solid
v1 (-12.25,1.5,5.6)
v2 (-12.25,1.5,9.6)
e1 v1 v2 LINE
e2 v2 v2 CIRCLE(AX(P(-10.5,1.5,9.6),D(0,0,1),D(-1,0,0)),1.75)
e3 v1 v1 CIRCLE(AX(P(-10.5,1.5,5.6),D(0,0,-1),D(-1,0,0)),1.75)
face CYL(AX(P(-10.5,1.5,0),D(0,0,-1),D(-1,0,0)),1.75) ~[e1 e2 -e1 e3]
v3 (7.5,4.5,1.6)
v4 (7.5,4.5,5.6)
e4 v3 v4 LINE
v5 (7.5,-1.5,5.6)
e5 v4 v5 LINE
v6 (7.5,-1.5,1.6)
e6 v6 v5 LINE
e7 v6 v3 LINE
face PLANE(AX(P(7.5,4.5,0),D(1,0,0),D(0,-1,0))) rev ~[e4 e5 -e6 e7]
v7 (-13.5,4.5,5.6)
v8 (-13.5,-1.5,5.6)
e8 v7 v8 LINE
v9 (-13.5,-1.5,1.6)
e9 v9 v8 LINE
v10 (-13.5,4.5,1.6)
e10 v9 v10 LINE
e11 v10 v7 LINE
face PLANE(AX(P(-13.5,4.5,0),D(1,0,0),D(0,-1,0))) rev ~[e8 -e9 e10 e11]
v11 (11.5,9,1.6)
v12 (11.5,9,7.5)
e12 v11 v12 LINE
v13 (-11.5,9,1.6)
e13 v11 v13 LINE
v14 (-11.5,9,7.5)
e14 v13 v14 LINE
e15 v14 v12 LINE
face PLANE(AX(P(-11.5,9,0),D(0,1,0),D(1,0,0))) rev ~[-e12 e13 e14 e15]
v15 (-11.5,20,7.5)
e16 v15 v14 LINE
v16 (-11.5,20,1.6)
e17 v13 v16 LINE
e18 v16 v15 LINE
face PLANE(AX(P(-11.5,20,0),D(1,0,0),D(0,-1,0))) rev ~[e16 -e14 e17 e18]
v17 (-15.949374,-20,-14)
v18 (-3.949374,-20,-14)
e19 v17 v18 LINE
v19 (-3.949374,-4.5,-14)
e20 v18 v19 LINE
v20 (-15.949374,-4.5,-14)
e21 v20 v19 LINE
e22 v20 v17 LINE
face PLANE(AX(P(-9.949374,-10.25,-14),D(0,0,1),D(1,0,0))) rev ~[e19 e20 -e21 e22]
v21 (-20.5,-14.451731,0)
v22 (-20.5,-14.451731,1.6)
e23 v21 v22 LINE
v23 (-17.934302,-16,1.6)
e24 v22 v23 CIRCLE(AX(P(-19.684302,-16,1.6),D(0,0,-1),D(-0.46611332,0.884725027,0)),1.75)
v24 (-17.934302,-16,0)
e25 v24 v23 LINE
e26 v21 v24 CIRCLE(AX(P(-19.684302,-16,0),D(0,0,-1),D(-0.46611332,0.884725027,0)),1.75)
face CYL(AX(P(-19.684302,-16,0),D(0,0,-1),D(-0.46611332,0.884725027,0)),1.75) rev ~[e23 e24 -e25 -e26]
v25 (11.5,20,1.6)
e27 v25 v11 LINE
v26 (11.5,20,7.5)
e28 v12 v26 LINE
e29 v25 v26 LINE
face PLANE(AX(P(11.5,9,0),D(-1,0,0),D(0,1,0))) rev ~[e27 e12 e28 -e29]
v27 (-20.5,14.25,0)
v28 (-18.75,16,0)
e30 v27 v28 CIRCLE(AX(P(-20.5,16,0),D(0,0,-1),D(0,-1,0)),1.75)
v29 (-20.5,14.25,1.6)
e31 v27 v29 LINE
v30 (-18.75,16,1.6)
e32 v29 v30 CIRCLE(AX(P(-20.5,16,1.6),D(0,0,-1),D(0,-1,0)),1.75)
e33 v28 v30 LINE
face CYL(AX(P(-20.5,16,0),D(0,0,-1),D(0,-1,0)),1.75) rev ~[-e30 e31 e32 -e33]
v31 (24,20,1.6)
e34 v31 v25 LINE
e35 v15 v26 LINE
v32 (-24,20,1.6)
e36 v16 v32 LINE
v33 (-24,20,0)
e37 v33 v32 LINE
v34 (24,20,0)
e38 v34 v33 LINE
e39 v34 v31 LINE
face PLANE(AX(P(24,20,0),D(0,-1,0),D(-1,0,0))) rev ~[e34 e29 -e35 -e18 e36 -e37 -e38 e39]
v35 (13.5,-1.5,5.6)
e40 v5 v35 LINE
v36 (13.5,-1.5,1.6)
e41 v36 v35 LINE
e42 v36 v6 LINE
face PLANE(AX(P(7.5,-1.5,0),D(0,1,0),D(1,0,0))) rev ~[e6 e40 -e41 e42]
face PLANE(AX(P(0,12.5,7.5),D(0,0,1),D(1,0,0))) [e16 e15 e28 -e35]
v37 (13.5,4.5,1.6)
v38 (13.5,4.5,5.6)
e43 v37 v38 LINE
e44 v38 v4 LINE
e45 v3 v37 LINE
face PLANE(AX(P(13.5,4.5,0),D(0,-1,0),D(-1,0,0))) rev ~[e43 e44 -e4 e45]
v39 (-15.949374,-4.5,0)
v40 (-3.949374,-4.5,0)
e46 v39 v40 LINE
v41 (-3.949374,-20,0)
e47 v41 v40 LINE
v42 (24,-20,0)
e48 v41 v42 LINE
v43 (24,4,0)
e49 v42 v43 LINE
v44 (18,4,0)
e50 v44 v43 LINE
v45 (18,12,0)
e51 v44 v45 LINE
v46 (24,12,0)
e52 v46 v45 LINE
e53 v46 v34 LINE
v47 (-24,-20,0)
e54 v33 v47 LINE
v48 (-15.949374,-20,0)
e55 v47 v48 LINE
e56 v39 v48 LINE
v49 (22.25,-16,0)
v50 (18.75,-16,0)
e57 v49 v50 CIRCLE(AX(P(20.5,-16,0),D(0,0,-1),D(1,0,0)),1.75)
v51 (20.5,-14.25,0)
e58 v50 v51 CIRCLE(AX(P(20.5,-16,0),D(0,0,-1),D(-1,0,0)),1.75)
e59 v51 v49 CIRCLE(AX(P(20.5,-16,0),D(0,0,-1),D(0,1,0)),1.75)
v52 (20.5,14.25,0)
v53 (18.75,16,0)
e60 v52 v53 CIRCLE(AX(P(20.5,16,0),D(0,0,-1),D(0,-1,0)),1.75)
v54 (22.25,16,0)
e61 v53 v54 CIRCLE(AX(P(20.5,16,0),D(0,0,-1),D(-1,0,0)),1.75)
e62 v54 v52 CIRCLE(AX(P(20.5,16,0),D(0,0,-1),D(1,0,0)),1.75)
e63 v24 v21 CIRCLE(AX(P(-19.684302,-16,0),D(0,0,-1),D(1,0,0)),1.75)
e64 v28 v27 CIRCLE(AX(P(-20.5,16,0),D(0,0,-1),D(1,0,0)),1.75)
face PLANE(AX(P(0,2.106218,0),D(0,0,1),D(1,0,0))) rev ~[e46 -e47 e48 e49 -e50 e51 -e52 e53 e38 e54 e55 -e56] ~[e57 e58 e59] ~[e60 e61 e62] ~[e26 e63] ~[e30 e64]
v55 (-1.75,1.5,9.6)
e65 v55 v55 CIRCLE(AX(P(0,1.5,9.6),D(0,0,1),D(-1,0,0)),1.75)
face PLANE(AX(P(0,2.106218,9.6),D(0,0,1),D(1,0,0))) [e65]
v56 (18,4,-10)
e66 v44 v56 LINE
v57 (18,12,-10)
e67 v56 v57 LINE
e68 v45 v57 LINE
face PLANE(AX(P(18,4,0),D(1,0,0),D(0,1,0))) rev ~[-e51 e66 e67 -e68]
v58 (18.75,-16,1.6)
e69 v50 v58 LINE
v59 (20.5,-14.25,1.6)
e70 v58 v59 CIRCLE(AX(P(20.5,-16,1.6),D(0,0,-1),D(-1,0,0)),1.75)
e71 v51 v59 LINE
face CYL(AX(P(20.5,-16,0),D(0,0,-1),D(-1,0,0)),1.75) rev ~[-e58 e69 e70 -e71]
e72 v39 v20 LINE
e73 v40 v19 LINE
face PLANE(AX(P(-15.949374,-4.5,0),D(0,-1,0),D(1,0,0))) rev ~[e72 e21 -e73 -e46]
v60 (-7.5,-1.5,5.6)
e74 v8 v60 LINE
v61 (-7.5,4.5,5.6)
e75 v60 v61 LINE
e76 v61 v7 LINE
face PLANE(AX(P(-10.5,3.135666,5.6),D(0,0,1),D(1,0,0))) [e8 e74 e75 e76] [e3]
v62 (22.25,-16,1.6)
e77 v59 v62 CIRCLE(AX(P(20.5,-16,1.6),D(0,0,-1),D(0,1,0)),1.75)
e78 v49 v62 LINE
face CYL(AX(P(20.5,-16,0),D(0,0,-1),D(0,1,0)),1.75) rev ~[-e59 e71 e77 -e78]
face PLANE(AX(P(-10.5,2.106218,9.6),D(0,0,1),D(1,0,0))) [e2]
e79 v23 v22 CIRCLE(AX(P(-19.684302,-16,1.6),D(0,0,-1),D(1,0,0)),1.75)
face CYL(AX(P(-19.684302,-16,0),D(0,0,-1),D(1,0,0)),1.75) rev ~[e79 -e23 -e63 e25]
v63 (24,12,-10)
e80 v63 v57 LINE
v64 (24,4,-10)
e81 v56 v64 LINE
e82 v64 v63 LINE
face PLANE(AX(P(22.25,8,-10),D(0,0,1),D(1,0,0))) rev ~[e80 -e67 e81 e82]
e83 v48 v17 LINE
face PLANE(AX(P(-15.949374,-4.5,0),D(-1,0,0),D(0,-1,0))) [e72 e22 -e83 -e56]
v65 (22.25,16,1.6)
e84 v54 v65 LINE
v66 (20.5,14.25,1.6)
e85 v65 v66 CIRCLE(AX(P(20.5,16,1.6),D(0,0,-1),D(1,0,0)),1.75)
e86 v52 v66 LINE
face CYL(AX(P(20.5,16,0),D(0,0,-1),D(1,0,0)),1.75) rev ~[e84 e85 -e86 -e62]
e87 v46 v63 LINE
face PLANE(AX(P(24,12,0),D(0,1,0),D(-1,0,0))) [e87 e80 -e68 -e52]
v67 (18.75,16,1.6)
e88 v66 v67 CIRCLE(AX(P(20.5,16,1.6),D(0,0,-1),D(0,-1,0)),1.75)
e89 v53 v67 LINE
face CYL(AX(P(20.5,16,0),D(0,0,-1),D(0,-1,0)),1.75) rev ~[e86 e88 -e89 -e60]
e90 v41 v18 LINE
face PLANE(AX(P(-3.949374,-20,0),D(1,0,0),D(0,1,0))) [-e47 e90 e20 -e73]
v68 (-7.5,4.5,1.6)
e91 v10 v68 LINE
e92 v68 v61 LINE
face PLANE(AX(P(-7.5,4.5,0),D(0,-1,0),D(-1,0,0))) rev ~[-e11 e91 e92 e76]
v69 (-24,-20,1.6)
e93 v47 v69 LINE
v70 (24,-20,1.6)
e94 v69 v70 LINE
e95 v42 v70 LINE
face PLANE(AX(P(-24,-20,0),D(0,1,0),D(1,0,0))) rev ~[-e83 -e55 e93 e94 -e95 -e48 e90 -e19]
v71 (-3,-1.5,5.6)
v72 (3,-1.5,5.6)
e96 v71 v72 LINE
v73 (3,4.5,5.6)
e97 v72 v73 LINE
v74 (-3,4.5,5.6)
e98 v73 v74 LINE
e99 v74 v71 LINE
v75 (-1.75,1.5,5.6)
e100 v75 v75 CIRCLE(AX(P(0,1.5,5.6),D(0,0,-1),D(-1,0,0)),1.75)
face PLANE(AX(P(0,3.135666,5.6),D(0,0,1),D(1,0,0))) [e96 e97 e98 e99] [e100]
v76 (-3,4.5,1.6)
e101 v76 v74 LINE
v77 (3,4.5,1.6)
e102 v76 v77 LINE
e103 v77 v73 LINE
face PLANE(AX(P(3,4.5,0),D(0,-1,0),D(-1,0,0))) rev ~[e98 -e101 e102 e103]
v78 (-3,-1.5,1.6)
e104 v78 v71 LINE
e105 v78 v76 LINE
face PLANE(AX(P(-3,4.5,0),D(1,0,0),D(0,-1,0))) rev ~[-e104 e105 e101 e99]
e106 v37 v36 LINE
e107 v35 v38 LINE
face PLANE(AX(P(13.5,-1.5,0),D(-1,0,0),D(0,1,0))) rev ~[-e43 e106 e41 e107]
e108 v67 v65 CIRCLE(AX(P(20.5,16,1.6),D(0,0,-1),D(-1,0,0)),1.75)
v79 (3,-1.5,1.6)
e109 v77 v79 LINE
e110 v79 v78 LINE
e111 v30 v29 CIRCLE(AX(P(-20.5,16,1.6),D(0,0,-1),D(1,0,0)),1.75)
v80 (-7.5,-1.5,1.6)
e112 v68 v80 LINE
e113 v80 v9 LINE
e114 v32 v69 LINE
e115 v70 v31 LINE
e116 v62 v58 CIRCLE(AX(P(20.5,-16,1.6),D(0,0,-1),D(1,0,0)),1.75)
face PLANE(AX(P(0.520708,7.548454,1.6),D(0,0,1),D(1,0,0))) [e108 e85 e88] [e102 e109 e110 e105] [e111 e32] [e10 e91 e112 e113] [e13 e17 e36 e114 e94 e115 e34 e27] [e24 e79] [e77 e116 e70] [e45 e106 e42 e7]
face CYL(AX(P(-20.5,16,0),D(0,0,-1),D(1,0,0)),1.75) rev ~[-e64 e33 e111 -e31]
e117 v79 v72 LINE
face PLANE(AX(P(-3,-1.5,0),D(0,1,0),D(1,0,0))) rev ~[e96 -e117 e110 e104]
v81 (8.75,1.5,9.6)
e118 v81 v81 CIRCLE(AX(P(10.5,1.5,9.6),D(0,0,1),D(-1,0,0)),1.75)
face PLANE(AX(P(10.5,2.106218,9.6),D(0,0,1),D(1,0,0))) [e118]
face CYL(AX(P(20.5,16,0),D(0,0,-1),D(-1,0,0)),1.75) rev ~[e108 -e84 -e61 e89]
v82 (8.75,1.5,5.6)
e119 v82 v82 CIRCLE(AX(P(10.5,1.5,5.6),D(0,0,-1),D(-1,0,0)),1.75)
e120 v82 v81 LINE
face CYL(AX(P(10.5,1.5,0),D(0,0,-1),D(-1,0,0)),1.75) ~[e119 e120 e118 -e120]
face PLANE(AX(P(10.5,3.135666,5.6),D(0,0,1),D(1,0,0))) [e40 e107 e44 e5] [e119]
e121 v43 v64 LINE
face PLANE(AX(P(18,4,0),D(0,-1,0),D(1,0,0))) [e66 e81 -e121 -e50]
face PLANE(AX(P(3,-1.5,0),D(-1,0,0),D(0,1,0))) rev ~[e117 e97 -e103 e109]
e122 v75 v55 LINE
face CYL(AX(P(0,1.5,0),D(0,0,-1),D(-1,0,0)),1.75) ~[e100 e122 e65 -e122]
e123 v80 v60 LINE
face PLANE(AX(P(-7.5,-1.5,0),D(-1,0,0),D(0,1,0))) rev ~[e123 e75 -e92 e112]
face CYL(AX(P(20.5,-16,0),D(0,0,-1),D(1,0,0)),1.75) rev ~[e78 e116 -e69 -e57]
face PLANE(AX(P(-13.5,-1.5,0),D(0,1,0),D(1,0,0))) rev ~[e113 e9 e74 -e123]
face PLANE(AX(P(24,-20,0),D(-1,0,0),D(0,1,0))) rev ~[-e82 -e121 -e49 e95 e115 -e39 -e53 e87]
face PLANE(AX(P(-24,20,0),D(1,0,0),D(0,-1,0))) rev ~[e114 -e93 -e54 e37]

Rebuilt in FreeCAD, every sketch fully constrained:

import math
import FreeCAD as App
import Part
import Sketcher
from FreeCAD import Vector


def add_polygon(sketch, points):
    """Adds a closed chain of lines whose ends are joined by coincident constraints."""
    first, n = sketch.GeometryCount, len(points)
    for a, b in zip(points, points[1:] + points[:1]):
        sketch.addGeometry(Part.LineSegment(App.Vector(*a, 0), App.Vector(*b, 0)), False)
    for i in range(n):
        sketch.addConstraint(Sketcher.Constraint("Coincident", first + i, 2, first + (i + 1) % n, 1))

doc = App.newDocument("Part")
body = doc.addObject("PartDesign::Body", "Body")

# Sketch on XY plane
sketch1 = doc.addObject("Sketcher::SketchObject", "Sketch")
body.addObject(sketch1)
sketch1.AttachmentSupport = (doc.XY_Plane, [""])
sketch1.MapMode = "FlatFace"
add_polygon(sketch1, [(24, -20), (24, 20), (11.5, 20), (11.5, 9), (-11.5, 9), (-11.5, 20), (-24, 20), (-24, -20)])  # lines 0-7
sketch1.addGeometry(Part.ArcOfCircle(Part.Circle(Vector(-19.684302, -16, 0), Vector(0, 0, 1), 1.75), math.radians(0), math.radians(117.782298)), False)  # 8
sketch1.addGeometry(Part.ArcOfCircle(Part.Circle(Vector(-19.684302, -16, 0), Vector(0, 0, 1), 1.75), math.radians(117.782298), math.radians(360)), False)  # 9
sketch1.addGeometry(Part.ArcOfCircle(Part.Circle(Vector(20.5, -16, 0), Vector(0, 0, 1), 1.75), math.radians(90), math.radians(180)), False)  # 10
sketch1.addGeometry(Part.ArcOfCircle(Part.Circle(Vector(20.5, -16, 0), Vector(0, 0, 1), 1.75), math.radians(0), math.radians(90)), False)  # 11
sketch1.addGeometry(Part.ArcOfCircle(Part.Circle(Vector(20.5, -16, 0), Vector(0, 0, 1), 1.75), math.radians(180), math.radians(360)), False)  # 12
sketch1.addGeometry(Part.ArcOfCircle(Part.Circle(Vector(-20.5, 16, 0), Vector(0, 0, 1), 1.75), math.radians(-90), math.radians(0)), False)  # 13
sketch1.addGeometry(Part.ArcOfCircle(Part.Circle(Vector(-20.5, 16, 0), Vector(0, 0, 1), 1.75), math.radians(0), math.radians(270)), False)  # 14
sketch1.addGeometry(Part.ArcOfCircle(Part.Circle(Vector(20.5, 16, 0), Vector(0, 0, 1), 1.75), math.radians(180), math.radians(270)), False)  # 15
sketch1.addGeometry(Part.ArcOfCircle(Part.Circle(Vector(20.5, 16, 0), Vector(0, 0, 1), 1.75), math.radians(0), math.radians(180)), False)  # 16
sketch1.addGeometry(Part.ArcOfCircle(Part.Circle(Vector(20.5, 16, 0), Vector(0, 0, 1), 1.75), math.radians(-90), math.radians(0)), False)  # 17
sketch1.addConstraint([
    Sketcher.Constraint("Tangent", 8, 1, 9, 2),
    Sketcher.Constraint("Coincident", 9, 1, 8, 2),
    Sketcher.Constraint("Tangent", 10, 1, 11, 2),
    Sketcher.Constraint("Tangent", 11, 1, 12, 2),
    Sketcher.Constraint("Tangent", 12, 1, 10, 2),
    Sketcher.Constraint("Tangent", 13, 1, 14, 2),
    Sketcher.Constraint("Coincident", 14, 1, 13, 2),
    Sketcher.Constraint("Tangent", 15, 1, 16, 2),
    Sketcher.Constraint("Tangent", 16, 1, 17, 2),
    Sketcher.Constraint("Tangent", 17, 1, 15, 2),
    Sketcher.Constraint("Vertical", 0),
    Sketcher.Constraint("Horizontal", 1),
    Sketcher.Constraint("Vertical", 2),
    Sketcher.Constraint("Horizontal", 3),
    Sketcher.Constraint("Vertical", 4),
    Sketcher.Constraint("Horizontal", 5),
    Sketcher.Constraint("Vertical", 6),
    Sketcher.Constraint("Horizontal", 7),
    Sketcher.Constraint("Equal", 9, 10),
    Sketcher.Constraint("Equal", 12, 13),
    Sketcher.Constraint("Equal", 14, 15),
    Sketcher.Constraint("Symmetric", 10, 3, 13, 3, -1, 1),
    Sketcher.Constraint("Symmetric", 0, 2, 6, 2, -1, 1),
    Sketcher.Constraint("Symmetric", 13, 3, 15, 3, -2),
    Sketcher.Constraint("Symmetric", 1, 2, 4, 2, -2),
    Sketcher.Constraint("Horizontal", 9, 3, 10, 3),
    Sketcher.Constraint("Horizontal", 12, 3, 8, 1),
    Sketcher.Constraint("Horizontal", 8, 1, 11, 1),
    Sketcher.Constraint("Horizontal", 11, 1, 12, 1),
    Sketcher.Constraint("Horizontal", 17, 3, 14, 1),
    Sketcher.Constraint("Horizontal", 14, 1, 15, 1),
    Sketcher.Constraint("Horizontal", 15, 1, 16, 1),
    Sketcher.Constraint("Vertical", 14, 3, 9, 1),
    Sketcher.Constraint("Vertical", 17, 3, 10, 1),
    Sketcher.Constraint("Vertical", 9, 1, 13, 1),
    Sketcher.Constraint("Vertical", 10, 1, 17, 1),
    Sketcher.Constraint("DistanceX", 3, 2, 3, 1, 23.0),
    Sketcher.Constraint("DistanceX", 7, 1, 7, 2, 48.0),
    Sketcher.Constraint("DistanceY", 0, 1, 0, 2, 40.0),
    Sketcher.Constraint("DistanceY", 2, 2, 2, 1, 11.0),
    Sketcher.Constraint("Radius", 8, 1.75),
    Sketcher.Constraint("DistanceY", 8, 3, -1, 1, 16.0),
    Sketcher.Constraint("DistanceX", 13, 3, 10, 3, 41.0),
    Sketcher.Constraint("DistanceX", 8, 3, -1, 1, 19.684302),
])
pad1 = doc.addObject("PartDesign::Pad", "Pad")
body.addObject(pad1)
pad1.Profile = sketch1
pad1.Length = 1.6

# Sketch on XY plane
sketch2 = doc.addObject("Sketcher::SketchObject", "Sketch001")
body.addObject(sketch2)
sketch2.AttachmentSupport = (doc.XY_Plane, [""])
sketch2.MapMode = "FlatFace"
add_polygon(sketch2, [(-11.5, 9), (11.5, 9), (11.5, 20), (-11.5, 20)])  # lines 0-3
sketch2.addConstraint([
    Sketcher.Constraint("Horizontal", 0),
    Sketcher.Constraint("Vertical", 1),
    Sketcher.Constraint("Horizontal", 2),
    Sketcher.Constraint("Vertical", 3),
    Sketcher.Constraint("DistanceX", 0, 1, 0, 2, 23.0),
    Sketcher.Constraint("DistanceY", 1, 1, 1, 2, 11.0),
    Sketcher.Constraint("DistanceY", -1, 1, 0, 2, 9.0),
    Sketcher.Constraint("DistanceX", -1, 1, 0, 2, 11.5),
])
pad2 = doc.addObject("PartDesign::Pad", "Pad001")
body.addObject(pad2)
pad2.Profile = sketch2
pad2.Length = 7.5

# Sketch on XY plane
sketch3 = doc.addObject("Sketcher::SketchObject", "Sketch002")
body.addObject(sketch3)
sketch3.AttachmentSupport = (doc.XY_Plane, [""])
sketch3.MapMode = "FlatFace"
add_polygon(sketch3, [(-13.5, 4.5), (-13.5, -1.5), (-7.5, -1.5), (-7.5, 4.5)])  # lines 0-3
sketch3.addGeometry(Part.Circle(Vector(-10.5, 1.5, 0), Vector(0, 0, 1), 1.75), False)  # 4
add_polygon(sketch3, [(-3, 4.5), (-3, -1.5), (3, -1.5), (3, 4.5)])  # lines 5-8
sketch3.addGeometry(Part.Circle(Vector(0, 1.5, 0), Vector(0, 0, 1), 1.75), False)  # 9
add_polygon(sketch3, [(13.5, 4.5), (7.5, 4.5), (7.5, -1.5), (13.5, -1.5)])  # lines 10-13
sketch3.addGeometry(Part.Circle(Vector(10.5, 1.5, 0), Vector(0, 0, 1), 1.75), False)  # 14
sketch3.addConstraint([
    Sketcher.Constraint("Vertical", 0),
    Sketcher.Constraint("Horizontal", 1),
    Sketcher.Constraint("Vertical", 2),
    Sketcher.Constraint("Horizontal", 3),
    Sketcher.Constraint("Vertical", 5),
    Sketcher.Constraint("Horizontal", 6),
    Sketcher.Constraint("Vertical", 7),
    Sketcher.Constraint("Horizontal", 8),
    Sketcher.Constraint("Horizontal", 10),
    Sketcher.Constraint("Vertical", 11),
    Sketcher.Constraint("Horizontal", 12),
    Sketcher.Constraint("Vertical", 13),
    Sketcher.Constraint("Equal", 4, 9),
    Sketcher.Constraint("Equal", 9, 14),
    Sketcher.Constraint("Symmetric", 4, 3, 14, 3, -2),
    Sketcher.Constraint("Symmetric", 2, 2, 10, 2, -2),
    Sketcher.Constraint("Symmetric", 0, 2, 12, 2, -2),
    Sketcher.Constraint("PointOnObject", 9, 3, -2),
    Sketcher.Constraint("Horizontal", 4, 3, 9, 3),
    Sketcher.Constraint("Horizontal", 1, 2, 5, 2),
    Sketcher.Constraint("Horizontal", 3, 2, 7, 2),
    Sketcher.Constraint("Equal", 3, 6),
    Sketcher.Constraint("Equal", 12, 0),
    Sketcher.Constraint("Diameter", 4, 3.5),
    Sketcher.Constraint("DistanceX", 1, 1, 1, 2, 6.0),
    Sketcher.Constraint("DistanceX", 5, 2, -1, 1, 3.0),
    Sketcher.Constraint("DistanceX", 4, 3, 14, 3, 21.0),
    Sketcher.Constraint("DistanceX", 0, 2, 4, 3, 3.0),
    Sketcher.Constraint("DistanceY", 0, 2, 4, 3, 3.0),
    Sketcher.Constraint("DistanceY", -1, 1, 4, 3, 1.5),
])
pad3 = doc.addObject("PartDesign::Pad", "Pad002")
body.addObject(pad3)
pad3.Profile = sketch3
pad3.Length = 5.6

# Sketch on XY plane
sketch4 = doc.addObject("Sketcher::SketchObject", "Sketch003")
body.addObject(sketch4)
sketch4.AttachmentSupport = (doc.XY_Plane, [""])
sketch4.MapMode = "FlatFace"
sketch4.addGeometry([
    Part.Circle(Vector(0, 1.5, 0), Vector(0, 0, 1), 1.75),
    Part.Circle(Vector(-10.5, 1.5, 0), Vector(0, 0, 1), 1.75),
    Part.Circle(Vector(10.5, 1.5, 0), Vector(0, 0, 1), 1.75),
], False)
sketch4.addConstraint([
    Sketcher.Constraint("Equal", 0, 1),
    Sketcher.Constraint("Equal", 1, 2),
    Sketcher.Constraint("Symmetric", 1, 3, 2, 3, -2),
    Sketcher.Constraint("PointOnObject", 0, 3, -2),
    Sketcher.Constraint("Horizontal", 0, 3, 1, 3),
    Sketcher.Constraint("Diameter", 0, 3.5),
    Sketcher.Constraint("DistanceX", 1, 3, 2, 3, 21.0),
    Sketcher.Constraint("DistanceY", -1, 1, 0, 3, 1.5),
])
pad4 = doc.addObject("PartDesign::Pad", "Pad003")
body.addObject(pad4)
pad4.Profile = sketch4
pad4.Length = 9.6

# Sketch on XY plane
sketch5 = doc.addObject("Sketcher::SketchObject", "Sketch004")
body.addObject(sketch5)
sketch5.AttachmentSupport = (doc.XY_Plane, [""])
sketch5.MapMode = "FlatFace"
add_polygon(sketch5, [(-15.949374, -4.5), (-15.949374, -20), (-3.949374, -20), (-3.949374, -4.5)])  # lines 0-3
sketch5.addConstraint([
    Sketcher.Constraint("Vertical", 0),
    Sketcher.Constraint("Horizontal", 1),
    Sketcher.Constraint("Vertical", 2),
    Sketcher.Constraint("Horizontal", 3),
    Sketcher.Constraint("DistanceX", 1, 1, 1, 2, 12.0),
    Sketcher.Constraint("DistanceY", 0, 2, 0, 1, 15.5),
    Sketcher.Constraint("DistanceY", 0, 2, -1, 1, 20.0),
    Sketcher.Constraint("DistanceX", 0, 2, -1, 1, 15.949374),
])
pad5 = doc.addObject("PartDesign::Pad", "Pad004")
body.addObject(pad5)
pad5.Profile = sketch5
pad5.Length = 14
pad5.Reversed = True

# Sketch on XY plane
sketch6 = doc.addObject("Sketcher::SketchObject", "Sketch005")
body.addObject(sketch6)
sketch6.AttachmentSupport = (doc.XY_Plane, [""])
sketch6.MapMode = "FlatFace"
add_polygon(sketch6, [(24, 4), (24, 12), (18, 12), (18, 4)])  # lines 0-3
sketch6.addConstraint([
    Sketcher.Constraint("Vertical", 0),
    Sketcher.Constraint("Horizontal", 1),
    Sketcher.Constraint("Vertical", 2),
    Sketcher.Constraint("Horizontal", 3),
    Sketcher.Constraint("DistanceX", 1, 2, 1, 1, 6.0),
    Sketcher.Constraint("DistanceY", 0, 1, 0, 2, 8.0),
    Sketcher.Constraint("DistanceX", -1, 1, 0, 2, 24.0),
    Sketcher.Constraint("DistanceY", -1, 1, 0, 2, 12.0),
])
pad6 = doc.addObject("PartDesign::Pad", "Pad005")
body.addObject(pad6)
pad6.Profile = sketch6
pad6.Length = 10
pad6.Reversed = True

doc.recompute()
